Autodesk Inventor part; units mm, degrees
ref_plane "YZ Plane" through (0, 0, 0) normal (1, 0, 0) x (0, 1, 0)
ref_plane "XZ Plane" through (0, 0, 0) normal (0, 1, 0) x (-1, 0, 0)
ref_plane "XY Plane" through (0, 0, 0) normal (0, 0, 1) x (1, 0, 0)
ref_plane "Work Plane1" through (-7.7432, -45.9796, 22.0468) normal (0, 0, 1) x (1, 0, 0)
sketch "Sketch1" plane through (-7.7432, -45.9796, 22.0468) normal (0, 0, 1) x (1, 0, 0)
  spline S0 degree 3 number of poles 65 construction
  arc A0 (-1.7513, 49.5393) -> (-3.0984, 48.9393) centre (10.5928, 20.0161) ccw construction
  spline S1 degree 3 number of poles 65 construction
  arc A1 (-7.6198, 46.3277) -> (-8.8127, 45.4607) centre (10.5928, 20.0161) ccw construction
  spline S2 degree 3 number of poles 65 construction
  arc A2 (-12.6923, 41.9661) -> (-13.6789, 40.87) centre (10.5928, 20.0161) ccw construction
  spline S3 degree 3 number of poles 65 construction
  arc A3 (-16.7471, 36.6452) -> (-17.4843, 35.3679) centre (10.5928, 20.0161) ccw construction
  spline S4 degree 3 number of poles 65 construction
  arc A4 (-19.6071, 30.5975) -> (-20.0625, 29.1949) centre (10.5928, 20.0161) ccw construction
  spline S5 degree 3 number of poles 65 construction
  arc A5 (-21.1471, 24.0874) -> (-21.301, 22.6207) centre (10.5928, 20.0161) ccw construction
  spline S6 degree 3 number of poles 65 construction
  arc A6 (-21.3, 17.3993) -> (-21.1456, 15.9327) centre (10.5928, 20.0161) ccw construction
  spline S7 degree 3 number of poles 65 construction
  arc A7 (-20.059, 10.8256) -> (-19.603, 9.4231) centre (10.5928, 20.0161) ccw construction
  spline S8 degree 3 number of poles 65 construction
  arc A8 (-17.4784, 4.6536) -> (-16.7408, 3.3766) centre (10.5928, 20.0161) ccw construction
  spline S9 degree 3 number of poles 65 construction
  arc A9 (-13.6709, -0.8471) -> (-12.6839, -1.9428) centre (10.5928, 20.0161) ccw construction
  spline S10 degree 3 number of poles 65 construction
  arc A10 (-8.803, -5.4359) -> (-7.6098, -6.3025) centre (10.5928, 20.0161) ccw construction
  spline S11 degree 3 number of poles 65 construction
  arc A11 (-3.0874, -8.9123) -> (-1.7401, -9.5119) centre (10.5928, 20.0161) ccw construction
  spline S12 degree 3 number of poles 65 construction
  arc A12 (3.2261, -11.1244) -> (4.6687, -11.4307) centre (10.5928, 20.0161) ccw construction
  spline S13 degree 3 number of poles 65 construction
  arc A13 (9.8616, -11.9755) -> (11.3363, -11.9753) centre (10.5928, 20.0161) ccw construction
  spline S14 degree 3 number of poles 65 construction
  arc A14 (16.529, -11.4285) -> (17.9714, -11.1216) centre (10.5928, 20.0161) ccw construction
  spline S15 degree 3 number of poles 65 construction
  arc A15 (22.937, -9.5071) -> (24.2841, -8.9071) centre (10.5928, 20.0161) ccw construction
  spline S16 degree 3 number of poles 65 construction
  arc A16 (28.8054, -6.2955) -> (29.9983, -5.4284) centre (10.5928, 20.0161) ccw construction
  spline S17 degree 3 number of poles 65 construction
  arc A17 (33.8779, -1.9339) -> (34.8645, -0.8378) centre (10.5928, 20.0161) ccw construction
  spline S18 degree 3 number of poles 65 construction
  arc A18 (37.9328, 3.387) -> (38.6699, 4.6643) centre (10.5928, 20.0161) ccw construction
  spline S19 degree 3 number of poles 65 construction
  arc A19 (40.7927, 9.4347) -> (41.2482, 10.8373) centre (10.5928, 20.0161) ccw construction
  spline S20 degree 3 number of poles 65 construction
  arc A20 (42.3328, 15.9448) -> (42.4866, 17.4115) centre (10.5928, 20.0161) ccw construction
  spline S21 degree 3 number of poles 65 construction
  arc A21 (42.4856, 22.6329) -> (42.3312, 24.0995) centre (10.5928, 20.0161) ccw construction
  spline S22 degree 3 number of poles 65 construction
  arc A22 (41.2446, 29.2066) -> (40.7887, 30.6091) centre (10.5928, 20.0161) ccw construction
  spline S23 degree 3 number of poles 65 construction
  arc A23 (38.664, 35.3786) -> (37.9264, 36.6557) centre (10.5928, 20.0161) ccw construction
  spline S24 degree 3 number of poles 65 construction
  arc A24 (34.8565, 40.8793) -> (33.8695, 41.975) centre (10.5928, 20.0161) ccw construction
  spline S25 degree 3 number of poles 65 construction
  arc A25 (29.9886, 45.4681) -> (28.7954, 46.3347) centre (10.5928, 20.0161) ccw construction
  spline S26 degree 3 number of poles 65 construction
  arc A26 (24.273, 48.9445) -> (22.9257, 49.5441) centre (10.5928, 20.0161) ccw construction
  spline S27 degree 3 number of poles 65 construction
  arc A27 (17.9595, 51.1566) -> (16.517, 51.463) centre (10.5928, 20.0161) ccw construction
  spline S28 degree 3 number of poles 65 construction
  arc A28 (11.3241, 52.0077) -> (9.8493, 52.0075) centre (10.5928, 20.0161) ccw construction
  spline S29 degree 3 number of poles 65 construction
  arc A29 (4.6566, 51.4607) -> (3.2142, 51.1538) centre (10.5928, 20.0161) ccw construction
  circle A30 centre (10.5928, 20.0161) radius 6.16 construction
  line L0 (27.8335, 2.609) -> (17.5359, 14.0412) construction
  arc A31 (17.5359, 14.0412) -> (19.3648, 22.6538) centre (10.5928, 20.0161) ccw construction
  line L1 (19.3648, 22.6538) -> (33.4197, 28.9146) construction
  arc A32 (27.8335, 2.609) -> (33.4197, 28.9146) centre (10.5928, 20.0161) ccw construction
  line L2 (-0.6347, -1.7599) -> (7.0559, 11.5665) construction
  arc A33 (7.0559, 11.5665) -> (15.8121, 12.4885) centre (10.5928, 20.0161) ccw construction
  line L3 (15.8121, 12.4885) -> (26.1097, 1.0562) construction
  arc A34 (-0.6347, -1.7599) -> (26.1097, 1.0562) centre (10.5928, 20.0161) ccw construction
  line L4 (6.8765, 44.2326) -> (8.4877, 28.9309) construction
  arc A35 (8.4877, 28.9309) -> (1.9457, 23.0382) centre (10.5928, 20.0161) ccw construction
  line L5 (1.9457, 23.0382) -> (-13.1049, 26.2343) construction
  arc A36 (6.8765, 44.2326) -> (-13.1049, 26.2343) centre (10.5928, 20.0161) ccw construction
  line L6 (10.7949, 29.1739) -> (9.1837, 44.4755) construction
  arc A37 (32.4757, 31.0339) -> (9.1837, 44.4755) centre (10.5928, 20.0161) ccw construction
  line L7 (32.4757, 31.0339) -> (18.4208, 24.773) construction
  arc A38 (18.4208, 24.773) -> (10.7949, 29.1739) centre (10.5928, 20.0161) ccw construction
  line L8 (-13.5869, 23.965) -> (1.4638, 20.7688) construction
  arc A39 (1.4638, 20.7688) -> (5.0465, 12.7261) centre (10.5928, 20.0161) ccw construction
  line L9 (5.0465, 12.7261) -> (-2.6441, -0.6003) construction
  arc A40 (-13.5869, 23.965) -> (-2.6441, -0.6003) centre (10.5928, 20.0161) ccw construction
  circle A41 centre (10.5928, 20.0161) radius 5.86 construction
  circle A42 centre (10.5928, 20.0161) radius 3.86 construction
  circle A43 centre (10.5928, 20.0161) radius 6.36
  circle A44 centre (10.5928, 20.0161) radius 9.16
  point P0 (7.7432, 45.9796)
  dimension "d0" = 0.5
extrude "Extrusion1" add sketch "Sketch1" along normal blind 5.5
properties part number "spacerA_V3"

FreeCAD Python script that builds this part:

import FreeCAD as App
import Part
import Sketcher

doc = App.newDocument("Part")
params = doc.addObject("Spreadsheet::Sheet", "Params")
for row, (alias, value) in enumerate([
    ("sketch1_diameter", "18.32 mm"),
    ("sketch1_diameter2", "12.72 mm"),
    ("pad1_length", "5.5 mm"),
], start=1):
    params.set(f"A{row}", alias)
    params.set(f"B{row}", "=" + value)
    params.setAlias(f"B{row}", alias)

body = doc.addObject("PartDesign::Body", "Body")

sketch1 = body.newObject("Sketcher::SketchObject", "Sketch")
sketch1.AttachmentSupport = (doc.getObject("XY_Plane"), [""])
sketch1.MapMode = "FlatFace"
sketch1.AttachmentOffset = App.Placement(App.Vector(0, 0, 22.0468), App.Rotation())
sketch1.addGeometry([
    Part.Circle(App.Vector(3, -26, 0), App.Vector(0, 0, 1), 9),
    Part.Circle(App.Vector(3, -26, 0), App.Vector(0, 0, 1), 6),
], False)
sketch1.addConstraint([
    Sketcher.Constraint("Coincident", 1, 3, 0, 3),
    Sketcher.Constraint("Diameter", 0, 18.32),
    Sketcher.Constraint("Diameter", 1, 12.72),
    Sketcher.Constraint("DistanceX", -1, 1, 0, 3, 2.8496),
    Sketcher.Constraint("DistanceY", 0, 3, -1, 1, 25.9635),
])
sketch1.setExpression("Constraints[1]", "Params.sketch1_diameter")
sketch1.setExpression("Constraints[2]", "Params.sketch1_diameter2")
pad1 = body.newObject("PartDesign::Pad", "Pad")
pad1.Profile = sketch1
pad1.setExpression("Length", "Params.pad1_length")

doc.recompute()
